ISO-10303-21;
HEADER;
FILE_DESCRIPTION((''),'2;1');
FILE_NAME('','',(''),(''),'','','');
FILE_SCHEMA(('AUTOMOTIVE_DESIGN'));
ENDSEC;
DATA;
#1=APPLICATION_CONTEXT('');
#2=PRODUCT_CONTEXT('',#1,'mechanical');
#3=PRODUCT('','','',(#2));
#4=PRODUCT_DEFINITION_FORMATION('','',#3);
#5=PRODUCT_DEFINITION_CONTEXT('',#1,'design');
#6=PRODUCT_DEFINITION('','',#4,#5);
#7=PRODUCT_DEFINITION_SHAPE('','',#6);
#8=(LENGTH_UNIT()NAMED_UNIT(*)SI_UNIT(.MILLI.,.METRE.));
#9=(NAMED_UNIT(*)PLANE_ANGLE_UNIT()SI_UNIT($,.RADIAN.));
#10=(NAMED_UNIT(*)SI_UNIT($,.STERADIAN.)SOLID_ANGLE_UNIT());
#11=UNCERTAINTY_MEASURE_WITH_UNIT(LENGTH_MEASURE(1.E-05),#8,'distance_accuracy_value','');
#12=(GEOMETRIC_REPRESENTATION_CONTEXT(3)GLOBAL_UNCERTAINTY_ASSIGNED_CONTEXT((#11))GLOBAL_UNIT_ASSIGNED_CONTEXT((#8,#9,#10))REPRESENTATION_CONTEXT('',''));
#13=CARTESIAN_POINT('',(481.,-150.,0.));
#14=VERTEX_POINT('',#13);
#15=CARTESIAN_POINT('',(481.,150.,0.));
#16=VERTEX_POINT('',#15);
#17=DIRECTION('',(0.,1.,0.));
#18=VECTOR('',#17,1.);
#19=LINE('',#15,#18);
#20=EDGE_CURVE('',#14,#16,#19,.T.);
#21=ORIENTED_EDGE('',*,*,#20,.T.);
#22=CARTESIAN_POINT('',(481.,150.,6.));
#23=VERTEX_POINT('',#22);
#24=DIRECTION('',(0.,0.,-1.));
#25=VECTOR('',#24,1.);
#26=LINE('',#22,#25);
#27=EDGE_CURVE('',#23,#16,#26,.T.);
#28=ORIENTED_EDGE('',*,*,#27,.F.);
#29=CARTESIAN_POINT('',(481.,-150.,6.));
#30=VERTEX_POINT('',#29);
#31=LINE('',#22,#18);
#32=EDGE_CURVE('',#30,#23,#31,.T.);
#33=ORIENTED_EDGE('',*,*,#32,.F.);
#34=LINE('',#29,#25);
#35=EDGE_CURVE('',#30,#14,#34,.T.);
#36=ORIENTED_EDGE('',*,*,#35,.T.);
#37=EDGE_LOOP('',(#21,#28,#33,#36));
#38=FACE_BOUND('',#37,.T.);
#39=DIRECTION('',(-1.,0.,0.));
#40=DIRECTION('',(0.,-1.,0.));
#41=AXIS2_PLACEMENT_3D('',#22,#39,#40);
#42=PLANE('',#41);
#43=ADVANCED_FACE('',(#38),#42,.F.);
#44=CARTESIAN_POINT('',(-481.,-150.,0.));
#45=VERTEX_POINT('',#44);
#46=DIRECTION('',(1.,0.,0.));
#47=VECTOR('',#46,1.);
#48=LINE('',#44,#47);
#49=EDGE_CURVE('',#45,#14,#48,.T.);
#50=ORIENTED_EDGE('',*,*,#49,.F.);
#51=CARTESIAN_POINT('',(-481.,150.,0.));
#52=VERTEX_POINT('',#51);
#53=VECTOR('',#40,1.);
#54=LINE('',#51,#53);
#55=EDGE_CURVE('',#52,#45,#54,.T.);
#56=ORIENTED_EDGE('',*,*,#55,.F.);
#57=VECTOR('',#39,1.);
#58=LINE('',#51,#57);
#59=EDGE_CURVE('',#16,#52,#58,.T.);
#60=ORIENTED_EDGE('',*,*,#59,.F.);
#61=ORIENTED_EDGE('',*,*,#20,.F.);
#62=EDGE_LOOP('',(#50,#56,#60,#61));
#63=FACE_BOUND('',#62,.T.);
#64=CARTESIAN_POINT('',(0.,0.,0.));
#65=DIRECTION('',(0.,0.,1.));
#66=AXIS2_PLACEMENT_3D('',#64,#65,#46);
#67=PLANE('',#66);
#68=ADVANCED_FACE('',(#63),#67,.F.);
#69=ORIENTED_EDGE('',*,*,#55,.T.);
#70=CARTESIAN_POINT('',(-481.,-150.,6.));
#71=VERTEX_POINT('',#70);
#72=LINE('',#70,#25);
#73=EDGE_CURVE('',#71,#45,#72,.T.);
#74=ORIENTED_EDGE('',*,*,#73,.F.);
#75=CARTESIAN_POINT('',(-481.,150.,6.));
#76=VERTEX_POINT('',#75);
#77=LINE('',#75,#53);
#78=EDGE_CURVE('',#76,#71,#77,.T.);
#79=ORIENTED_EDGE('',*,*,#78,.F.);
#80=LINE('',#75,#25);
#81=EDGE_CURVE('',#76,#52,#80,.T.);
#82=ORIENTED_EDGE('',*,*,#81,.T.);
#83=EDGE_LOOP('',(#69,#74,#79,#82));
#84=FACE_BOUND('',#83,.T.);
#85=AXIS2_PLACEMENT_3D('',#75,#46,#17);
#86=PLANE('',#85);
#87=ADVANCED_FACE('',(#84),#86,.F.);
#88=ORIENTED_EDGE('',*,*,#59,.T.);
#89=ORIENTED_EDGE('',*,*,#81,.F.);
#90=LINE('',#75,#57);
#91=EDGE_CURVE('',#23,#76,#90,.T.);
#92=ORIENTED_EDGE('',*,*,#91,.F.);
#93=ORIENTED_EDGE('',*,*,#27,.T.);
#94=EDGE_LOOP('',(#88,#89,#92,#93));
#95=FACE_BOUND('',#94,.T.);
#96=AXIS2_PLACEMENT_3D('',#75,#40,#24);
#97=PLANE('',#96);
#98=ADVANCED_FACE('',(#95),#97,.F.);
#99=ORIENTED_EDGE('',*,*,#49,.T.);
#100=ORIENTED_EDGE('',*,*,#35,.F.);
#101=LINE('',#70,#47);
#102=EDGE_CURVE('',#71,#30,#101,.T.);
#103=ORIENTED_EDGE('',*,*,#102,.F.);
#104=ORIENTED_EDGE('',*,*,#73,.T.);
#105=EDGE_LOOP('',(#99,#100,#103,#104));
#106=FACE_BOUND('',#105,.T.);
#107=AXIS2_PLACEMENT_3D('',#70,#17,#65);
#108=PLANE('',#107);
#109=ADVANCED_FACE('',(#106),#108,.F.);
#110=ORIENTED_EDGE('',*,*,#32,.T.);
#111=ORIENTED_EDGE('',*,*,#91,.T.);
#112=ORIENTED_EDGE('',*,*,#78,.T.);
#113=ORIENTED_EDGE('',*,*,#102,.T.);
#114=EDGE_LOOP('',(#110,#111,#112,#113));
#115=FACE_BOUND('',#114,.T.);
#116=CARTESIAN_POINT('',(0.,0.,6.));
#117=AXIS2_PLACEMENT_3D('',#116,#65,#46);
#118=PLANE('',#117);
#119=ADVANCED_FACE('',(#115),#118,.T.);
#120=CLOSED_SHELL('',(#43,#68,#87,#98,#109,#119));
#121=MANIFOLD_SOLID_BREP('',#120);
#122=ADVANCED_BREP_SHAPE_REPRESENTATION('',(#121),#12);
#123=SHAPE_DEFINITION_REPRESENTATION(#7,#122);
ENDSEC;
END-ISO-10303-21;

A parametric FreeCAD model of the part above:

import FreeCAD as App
import Part
import Sketcher

V = App.Vector


def add_polygon(sketch, points):
    """Adds a closed chain of lines whose ends are joined by coincident constraints."""
    first, n = sketch.GeometryCount, len(points)
    for a, b in zip(points, points[1:] + points[:1]):
        sketch.addGeometry(Part.LineSegment(App.Vector(*a, 0), App.Vector(*b, 0)), False)
    for i in range(n):
        sketch.addConstraint(Sketcher.Constraint("Coincident", first + i, 2, first + (i + 1) % n, 1))

doc = App.newDocument("Part")
body = doc.addObject("PartDesign::Body", "Body")

sketch1 = body.newObject("Sketcher::SketchObject", "Sketch")
sketch1.AttachmentSupport = (doc.getObject("XY_Plane"), [""])
sketch1.MapMode = "FlatFace"
add_polygon(sketch1, [(-481, 150), (-481, -150), (481, -150), (481, 150)])
sketch1.addConstraint(Sketcher.Constraint("Vertical", 0))
sketch1.addConstraint(Sketcher.Constraint("Horizontal", 1))
sketch1.addConstraint(Sketcher.Constraint("Vertical", 2))
sketch1.addConstraint(Sketcher.Constraint("Horizontal", 3))
sketch1.addConstraint(Sketcher.Constraint("Symmetric", 0, 2, 2, 2, -1, 1))
sketch1.addConstraint(Sketcher.Constraint("DistanceX", 1, 1, 1, 2, 962.0))
sketch1.addConstraint(Sketcher.Constraint("DistanceY", 0, 2, 0, 1, 300.0))
pad1 = body.newObject("PartDesign::Pad", "Pad")
pad1.Profile = sketch1
pad1.Length = 6

doc.recompute()
